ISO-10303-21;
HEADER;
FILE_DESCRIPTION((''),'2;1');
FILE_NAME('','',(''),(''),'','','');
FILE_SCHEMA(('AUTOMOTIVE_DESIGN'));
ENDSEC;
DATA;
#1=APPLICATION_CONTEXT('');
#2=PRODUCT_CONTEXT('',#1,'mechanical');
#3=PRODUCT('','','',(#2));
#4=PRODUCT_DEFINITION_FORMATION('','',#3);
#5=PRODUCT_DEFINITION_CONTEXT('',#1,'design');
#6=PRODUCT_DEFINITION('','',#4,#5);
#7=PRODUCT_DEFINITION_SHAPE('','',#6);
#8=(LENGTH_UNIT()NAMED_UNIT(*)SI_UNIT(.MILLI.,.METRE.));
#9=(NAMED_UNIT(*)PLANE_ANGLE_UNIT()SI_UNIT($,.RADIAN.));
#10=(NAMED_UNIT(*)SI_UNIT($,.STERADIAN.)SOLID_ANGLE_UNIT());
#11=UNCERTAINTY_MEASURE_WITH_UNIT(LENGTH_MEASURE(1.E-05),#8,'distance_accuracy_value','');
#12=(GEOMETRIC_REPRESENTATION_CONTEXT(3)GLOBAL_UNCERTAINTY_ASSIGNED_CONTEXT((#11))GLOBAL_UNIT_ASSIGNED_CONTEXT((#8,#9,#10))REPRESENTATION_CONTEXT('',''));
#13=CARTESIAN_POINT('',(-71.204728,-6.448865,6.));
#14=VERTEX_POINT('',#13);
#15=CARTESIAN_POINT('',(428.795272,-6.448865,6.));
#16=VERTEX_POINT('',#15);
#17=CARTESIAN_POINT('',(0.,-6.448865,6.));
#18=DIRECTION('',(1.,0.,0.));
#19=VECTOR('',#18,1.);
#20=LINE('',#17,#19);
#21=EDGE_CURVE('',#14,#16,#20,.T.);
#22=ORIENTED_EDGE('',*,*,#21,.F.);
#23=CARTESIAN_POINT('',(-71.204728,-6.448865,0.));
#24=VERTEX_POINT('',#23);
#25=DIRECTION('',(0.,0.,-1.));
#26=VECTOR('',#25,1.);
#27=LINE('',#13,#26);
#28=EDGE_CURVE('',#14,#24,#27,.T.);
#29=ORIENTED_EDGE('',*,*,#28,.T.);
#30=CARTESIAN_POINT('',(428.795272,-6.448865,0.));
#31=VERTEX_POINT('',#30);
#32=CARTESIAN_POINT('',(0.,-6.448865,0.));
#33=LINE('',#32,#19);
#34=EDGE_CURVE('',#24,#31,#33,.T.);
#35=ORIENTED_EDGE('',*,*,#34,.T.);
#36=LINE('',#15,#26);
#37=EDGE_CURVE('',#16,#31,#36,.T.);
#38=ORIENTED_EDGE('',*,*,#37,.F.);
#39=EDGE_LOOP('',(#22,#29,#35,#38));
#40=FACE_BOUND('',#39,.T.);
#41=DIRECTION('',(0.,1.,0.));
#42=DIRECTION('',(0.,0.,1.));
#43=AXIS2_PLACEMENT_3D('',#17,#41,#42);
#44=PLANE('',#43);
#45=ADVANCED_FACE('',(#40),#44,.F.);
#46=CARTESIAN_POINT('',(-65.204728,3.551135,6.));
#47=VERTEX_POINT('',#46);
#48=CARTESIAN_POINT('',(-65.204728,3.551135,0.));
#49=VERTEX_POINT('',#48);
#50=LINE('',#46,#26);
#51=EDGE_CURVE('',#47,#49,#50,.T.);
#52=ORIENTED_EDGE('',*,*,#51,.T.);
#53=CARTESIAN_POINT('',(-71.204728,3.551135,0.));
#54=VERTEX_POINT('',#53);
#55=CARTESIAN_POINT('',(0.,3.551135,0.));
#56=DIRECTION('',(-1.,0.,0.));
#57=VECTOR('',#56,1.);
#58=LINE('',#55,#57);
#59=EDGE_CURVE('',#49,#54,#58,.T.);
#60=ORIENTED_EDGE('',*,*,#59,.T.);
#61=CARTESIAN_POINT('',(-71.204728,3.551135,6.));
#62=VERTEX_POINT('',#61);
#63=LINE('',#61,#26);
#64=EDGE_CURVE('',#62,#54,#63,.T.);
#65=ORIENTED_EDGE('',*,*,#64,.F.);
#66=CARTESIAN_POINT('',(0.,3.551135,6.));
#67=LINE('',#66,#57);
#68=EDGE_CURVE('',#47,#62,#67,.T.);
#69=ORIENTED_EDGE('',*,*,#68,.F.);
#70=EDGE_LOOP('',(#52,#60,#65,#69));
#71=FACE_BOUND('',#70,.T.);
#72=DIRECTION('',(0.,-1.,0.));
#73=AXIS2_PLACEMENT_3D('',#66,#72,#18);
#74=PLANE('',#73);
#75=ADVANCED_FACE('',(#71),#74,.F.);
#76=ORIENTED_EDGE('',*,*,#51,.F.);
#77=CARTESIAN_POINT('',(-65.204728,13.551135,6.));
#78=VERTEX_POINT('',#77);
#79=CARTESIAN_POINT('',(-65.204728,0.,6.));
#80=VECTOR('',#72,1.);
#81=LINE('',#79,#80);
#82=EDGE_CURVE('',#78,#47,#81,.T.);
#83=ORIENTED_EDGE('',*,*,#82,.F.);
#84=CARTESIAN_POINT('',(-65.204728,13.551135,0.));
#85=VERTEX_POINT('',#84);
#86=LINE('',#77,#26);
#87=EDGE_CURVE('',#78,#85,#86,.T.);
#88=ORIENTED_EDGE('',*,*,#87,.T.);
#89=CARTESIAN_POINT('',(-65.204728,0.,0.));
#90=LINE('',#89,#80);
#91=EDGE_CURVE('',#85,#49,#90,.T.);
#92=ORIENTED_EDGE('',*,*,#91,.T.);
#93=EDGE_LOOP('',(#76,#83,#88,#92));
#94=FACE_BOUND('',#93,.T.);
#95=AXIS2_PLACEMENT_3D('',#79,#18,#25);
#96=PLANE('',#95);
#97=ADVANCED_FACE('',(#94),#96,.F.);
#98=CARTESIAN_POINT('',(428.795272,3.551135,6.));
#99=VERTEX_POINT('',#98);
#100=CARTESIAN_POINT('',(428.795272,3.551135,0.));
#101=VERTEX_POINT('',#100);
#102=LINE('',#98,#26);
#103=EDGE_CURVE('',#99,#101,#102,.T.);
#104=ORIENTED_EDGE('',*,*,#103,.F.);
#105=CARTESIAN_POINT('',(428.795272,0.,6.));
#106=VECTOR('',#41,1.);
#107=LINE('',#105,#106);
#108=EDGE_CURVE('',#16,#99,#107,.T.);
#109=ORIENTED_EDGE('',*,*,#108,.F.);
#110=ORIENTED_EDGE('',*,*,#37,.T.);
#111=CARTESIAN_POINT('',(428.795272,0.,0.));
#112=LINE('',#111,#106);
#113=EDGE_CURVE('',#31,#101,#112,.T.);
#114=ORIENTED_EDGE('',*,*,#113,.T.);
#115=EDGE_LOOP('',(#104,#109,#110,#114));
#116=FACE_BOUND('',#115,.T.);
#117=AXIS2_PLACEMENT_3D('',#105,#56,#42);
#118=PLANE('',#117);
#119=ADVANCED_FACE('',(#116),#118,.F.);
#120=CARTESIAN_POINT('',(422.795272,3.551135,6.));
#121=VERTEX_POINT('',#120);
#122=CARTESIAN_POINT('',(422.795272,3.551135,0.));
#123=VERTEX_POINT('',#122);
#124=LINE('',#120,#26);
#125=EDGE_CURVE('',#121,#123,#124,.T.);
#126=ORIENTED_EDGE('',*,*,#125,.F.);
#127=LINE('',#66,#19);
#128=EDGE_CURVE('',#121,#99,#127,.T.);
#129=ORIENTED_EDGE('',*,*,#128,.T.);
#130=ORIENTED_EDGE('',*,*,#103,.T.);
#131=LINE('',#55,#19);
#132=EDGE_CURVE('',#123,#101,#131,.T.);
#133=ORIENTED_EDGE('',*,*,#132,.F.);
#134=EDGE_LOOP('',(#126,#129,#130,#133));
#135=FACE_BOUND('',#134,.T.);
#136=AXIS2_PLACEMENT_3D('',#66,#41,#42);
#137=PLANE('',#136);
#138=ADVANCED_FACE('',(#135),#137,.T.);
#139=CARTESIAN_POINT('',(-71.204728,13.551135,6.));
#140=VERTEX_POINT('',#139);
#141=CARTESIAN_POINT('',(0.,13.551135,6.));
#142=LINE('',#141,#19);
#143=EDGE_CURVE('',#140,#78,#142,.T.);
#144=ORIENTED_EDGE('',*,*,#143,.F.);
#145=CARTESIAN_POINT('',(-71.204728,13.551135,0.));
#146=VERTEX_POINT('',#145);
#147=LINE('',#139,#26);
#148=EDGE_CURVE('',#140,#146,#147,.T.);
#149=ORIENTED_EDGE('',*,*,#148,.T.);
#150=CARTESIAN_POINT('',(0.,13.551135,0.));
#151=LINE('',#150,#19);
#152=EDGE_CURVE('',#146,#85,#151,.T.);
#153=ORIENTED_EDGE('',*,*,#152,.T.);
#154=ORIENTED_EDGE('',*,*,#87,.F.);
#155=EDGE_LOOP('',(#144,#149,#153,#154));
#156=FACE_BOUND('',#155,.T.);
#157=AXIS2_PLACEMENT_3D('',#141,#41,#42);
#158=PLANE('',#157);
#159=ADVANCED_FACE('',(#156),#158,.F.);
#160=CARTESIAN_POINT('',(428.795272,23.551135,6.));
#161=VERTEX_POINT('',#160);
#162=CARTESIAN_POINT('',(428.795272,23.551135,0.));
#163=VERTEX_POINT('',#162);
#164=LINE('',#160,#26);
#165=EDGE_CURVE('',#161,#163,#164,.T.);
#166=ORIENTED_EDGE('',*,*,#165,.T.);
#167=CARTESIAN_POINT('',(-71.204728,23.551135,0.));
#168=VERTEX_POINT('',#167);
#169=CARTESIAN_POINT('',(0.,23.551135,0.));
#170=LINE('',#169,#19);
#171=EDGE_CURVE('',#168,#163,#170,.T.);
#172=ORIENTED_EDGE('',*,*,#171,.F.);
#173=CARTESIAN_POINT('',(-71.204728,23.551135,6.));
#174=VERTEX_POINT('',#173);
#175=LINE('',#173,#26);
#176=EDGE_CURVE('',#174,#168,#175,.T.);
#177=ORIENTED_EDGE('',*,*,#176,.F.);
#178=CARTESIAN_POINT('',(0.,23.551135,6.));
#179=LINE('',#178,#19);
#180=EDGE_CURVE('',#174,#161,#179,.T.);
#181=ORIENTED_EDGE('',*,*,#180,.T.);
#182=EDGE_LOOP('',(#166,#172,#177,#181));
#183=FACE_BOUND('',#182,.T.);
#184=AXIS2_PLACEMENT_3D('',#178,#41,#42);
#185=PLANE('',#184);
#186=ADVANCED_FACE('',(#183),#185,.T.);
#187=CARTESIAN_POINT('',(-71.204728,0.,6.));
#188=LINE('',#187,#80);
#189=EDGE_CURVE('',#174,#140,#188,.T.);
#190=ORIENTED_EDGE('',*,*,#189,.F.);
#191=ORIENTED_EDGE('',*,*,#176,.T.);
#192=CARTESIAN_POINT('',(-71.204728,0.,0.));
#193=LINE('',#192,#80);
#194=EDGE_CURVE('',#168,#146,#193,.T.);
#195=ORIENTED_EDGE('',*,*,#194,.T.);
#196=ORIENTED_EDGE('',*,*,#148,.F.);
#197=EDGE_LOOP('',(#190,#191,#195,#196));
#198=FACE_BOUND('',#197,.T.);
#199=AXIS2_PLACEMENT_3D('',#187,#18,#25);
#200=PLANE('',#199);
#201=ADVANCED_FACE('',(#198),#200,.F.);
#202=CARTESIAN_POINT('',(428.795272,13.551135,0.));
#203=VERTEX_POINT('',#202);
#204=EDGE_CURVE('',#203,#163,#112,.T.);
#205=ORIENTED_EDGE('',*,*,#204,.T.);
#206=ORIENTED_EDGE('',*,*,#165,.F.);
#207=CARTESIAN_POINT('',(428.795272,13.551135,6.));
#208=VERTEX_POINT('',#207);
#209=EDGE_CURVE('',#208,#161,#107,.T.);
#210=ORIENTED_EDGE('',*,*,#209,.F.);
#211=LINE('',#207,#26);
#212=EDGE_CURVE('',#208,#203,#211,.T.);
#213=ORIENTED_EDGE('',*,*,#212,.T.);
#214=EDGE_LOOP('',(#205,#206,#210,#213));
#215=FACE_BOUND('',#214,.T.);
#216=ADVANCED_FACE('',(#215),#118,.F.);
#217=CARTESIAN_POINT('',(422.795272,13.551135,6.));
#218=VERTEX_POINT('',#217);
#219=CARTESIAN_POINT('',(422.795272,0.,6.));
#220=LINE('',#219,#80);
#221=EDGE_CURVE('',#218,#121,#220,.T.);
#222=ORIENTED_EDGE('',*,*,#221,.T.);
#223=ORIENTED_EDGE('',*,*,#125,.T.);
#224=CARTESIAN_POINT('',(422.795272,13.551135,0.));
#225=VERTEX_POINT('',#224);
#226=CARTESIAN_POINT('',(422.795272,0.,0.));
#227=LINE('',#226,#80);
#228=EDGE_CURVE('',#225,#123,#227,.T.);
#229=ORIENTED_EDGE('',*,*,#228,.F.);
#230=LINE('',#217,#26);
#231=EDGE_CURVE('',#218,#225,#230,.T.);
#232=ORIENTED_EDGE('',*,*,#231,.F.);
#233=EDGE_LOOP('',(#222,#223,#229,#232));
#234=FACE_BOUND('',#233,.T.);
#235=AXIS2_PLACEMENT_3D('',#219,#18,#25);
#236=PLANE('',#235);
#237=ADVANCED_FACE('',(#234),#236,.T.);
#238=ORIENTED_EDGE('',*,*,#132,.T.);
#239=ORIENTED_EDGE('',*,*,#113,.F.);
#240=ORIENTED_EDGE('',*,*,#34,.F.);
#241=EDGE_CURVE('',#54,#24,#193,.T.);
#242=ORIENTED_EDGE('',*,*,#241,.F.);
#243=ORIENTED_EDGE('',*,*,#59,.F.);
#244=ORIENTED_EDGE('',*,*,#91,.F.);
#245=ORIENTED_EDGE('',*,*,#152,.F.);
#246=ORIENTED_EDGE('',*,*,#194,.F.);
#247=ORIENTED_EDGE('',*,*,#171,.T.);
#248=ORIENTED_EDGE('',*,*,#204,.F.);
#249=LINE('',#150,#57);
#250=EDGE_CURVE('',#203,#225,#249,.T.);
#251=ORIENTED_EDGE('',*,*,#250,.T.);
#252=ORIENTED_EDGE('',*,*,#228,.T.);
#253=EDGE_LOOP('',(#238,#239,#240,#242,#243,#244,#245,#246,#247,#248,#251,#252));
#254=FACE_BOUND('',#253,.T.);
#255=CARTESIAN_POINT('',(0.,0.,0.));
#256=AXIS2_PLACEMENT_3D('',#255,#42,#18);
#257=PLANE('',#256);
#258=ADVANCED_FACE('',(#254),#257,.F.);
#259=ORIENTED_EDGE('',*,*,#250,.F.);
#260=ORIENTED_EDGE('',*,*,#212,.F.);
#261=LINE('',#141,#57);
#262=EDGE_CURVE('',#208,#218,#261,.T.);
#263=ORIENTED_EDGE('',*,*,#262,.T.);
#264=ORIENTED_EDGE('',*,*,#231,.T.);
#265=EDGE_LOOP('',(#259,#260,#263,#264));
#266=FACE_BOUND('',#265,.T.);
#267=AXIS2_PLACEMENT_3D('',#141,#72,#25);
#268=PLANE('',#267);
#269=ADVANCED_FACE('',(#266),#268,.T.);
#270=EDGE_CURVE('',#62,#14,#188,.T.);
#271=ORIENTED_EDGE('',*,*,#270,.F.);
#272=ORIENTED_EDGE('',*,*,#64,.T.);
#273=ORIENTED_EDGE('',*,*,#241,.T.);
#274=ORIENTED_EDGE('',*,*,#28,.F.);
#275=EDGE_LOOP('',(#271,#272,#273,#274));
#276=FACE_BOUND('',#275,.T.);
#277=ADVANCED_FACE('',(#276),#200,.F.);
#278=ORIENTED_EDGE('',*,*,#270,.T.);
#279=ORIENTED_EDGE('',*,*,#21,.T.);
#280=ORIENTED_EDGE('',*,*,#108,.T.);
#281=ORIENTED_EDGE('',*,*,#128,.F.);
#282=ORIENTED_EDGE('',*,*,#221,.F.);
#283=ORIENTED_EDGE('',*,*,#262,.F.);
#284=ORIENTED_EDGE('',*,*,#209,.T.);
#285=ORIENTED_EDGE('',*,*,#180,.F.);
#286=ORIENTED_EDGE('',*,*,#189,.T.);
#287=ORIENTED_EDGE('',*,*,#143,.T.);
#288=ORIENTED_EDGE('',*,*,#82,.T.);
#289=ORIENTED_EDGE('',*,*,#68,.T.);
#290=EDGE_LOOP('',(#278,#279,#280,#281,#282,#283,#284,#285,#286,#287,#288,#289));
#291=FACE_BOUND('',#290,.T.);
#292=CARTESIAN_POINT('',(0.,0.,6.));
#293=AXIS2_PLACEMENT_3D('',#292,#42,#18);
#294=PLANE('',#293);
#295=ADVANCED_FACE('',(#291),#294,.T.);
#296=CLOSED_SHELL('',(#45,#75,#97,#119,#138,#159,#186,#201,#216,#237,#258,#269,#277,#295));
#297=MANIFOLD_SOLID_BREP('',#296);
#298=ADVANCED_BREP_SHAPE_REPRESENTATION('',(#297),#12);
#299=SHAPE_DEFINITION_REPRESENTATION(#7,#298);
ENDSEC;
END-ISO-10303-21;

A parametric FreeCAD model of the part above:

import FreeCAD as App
import Part
import Sketcher
Q = App.Units.Quantity


def add_polygon(sketch, points):
    """Adds a closed chain of lines whose ends are joined by coincident constraints."""
    first, n = sketch.GeometryCount, len(points)
    for a, b in zip(points, points[1:] + points[:1]):
        sketch.addGeometry(Part.LineSegment(App.Vector(*a, 0), App.Vector(*b, 0)), False)
    for i in range(n):
        sketch.addConstraint(Sketcher.Constraint("Coincident", first + i, 2, first + (i + 1) % n, 1))

doc = App.newDocument("Part")
params = doc.addObject("Spreadsheet::Sheet", "Params")
for row, (alias, value) in enumerate([
    ("sketch1_width", "500 mm"),
    ("sketch1_width2", "6 mm"),
    ("sketch1_height", "10 mm"),
    ("pad1_length", "6 mm"),
], start=1):
    params.set(f"A{row}", alias)
    params.set(f"B{row}", "=" + value)
    params.setAlias(f"B{row}", alias)

body = doc.addObject("PartDesign::Body", "Body")

sketch1 = doc.addObject("Sketcher::SketchObject", "Sketch")
body.addObject(sketch1)
sketch1.AttachmentSupport = (doc.XY_Plane, [""])
sketch1.MapMode = "FlatFace"
add_polygon(sketch1, [(428.795272, 23.551135), (-71.204728, 23.551135), (-71.204728, 13.551135), (-65.204728, 13.551135), (-65.204728, 3.551135), (-71.204728, 3.551135), (-71.204728, -6.448865), (428.795272, -6.448865), (428.795272, 3.551135), (422.795272, 3.551135), (422.795272, 13.551135), (428.795272, 13.551135)])
sketch1.addConstraint(Sketcher.Constraint("Horizontal", 0))
sketch1.addConstraint(Sketcher.Constraint("Vertical", 1))
sketch1.addConstraint(Sketcher.Constraint("Horizontal", 2))
sketch1.addConstraint(Sketcher.Constraint("Vertical", 3))
sketch1.addConstraint(Sketcher.Constraint("Horizontal", 4))
sketch1.addConstraint(Sketcher.Constraint("Vertical", 5))
sketch1.addConstraint(Sketcher.Constraint("Horizontal", 6))
sketch1.addConstraint(Sketcher.Constraint("Vertical", 7))
sketch1.addConstraint(Sketcher.Constraint("Horizontal", 8))
sketch1.addConstraint(Sketcher.Constraint("Vertical", 9))
sketch1.addConstraint(Sketcher.Constraint("Horizontal", 10))
sketch1.addConstraint(Sketcher.Constraint("Vertical", 11))
sketch1.addConstraint(Sketcher.Constraint("Horizontal", 4, 2, 7, 2))
sketch1.addConstraint(Sketcher.Constraint("Horizontal", 2, 2, 9, 2))
sketch1.addConstraint(Sketcher.Constraint("Vertical", 1, 2, 4, 2))
sketch1.addConstraint(Sketcher.Constraint("Vertical", 7, 2, 10, 2))
sketch1.addConstraint(Sketcher.Constraint("Equal", 4, 8))
sketch1.addConstraint(Sketcher.Constraint("Equal", 1, 3))
sketch1.addConstraint(Sketcher.Constraint("Equal", 3, 5))
sketch1.addConstraint(Sketcher.Constraint("DistanceX", 0, 2, 0, 1, Q("500 mm")))
sketch1.addConstraint(Sketcher.Constraint("DistanceX", 2, 1, 2, 2, Q("6 mm")))
sketch1.addConstraint(Sketcher.Constraint("DistanceY", 1, 2, 1, 1, Q("10 mm")))
sketch1.addConstraint(Sketcher.Constraint("DistanceX", 0, 2, -1, 1, Q("71.204728 mm")))
sketch1.addConstraint(Sketcher.Constraint("DistanceY", -1, 1, 0, 2, Q("23.551135 mm")))
sketch1.setExpression("Constraints[31]", "Params.sketch1_width")
sketch1.setExpression("Constraints[32]", "Params.sketch1_width2")
sketch1.setExpression("Constraints[33]", "Params.sketch1_height")
pad1 = doc.addObject("PartDesign::Pad", "Pad")
body.addObject(pad1)
pad1.Profile = sketch1
pad1.setExpression("Length", "Params.pad1_length")

doc.recompute()
